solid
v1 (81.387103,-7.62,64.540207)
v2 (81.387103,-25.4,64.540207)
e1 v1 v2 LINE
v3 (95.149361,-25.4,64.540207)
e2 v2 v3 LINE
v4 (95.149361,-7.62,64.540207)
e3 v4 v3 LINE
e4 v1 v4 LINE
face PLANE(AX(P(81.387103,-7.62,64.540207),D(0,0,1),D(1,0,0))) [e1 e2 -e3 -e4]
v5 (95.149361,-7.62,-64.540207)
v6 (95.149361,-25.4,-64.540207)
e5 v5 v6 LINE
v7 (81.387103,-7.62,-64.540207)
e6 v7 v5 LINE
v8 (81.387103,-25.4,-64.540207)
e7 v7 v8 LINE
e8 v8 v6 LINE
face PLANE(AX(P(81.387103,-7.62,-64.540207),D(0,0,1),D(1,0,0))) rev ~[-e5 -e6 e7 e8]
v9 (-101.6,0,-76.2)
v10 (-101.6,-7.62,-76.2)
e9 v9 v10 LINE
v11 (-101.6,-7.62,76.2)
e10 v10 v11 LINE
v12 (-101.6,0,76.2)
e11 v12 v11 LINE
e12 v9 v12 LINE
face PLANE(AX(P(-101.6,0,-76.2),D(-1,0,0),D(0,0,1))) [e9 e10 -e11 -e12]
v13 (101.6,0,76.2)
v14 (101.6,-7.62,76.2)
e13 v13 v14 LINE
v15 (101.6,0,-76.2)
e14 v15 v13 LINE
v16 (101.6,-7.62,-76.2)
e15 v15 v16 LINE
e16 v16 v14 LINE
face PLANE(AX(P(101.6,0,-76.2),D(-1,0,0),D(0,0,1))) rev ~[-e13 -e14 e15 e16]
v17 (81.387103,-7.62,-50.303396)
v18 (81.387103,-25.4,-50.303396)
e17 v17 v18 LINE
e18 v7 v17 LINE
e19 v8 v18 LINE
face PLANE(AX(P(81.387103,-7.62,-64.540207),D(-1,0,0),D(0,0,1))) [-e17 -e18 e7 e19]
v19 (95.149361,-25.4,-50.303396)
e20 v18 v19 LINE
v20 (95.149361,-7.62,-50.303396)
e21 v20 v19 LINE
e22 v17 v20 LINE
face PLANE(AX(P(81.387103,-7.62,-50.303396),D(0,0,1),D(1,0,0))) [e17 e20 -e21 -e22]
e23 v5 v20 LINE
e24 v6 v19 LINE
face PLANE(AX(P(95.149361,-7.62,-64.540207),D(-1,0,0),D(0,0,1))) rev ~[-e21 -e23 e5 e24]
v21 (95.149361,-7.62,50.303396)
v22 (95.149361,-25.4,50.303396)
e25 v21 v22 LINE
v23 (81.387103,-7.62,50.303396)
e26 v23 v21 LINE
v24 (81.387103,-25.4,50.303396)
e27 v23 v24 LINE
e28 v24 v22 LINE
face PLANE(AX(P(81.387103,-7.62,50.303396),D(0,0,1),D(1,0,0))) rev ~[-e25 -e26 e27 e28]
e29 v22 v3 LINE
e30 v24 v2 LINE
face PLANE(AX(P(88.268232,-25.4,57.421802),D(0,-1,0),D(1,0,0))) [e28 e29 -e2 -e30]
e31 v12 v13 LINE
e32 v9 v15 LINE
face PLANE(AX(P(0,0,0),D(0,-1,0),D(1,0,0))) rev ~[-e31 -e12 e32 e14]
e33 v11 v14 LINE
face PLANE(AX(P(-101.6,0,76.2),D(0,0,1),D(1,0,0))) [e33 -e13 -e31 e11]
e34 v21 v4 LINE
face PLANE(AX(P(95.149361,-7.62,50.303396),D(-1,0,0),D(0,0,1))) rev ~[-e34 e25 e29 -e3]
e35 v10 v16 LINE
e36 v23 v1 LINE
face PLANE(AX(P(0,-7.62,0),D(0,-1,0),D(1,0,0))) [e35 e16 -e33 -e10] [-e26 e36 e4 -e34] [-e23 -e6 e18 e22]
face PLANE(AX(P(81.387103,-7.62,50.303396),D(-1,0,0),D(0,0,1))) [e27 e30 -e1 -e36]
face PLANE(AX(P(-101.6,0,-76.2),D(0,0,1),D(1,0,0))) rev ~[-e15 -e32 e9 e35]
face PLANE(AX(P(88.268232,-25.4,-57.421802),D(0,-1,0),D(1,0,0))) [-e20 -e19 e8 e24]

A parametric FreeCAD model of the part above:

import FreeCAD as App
import Part
import Sketcher
Q = App.Units.Quantity

doc = App.newDocument("Part")
body = doc.addObject("PartDesign::Body", "Body")

sketch1 = body.newObject("Sketcher::SketchObject", "Sketch")
sketch1.AttachmentSupport = (doc.getObject("XZ_Plane"), [""])
sketch1.MapMode = "FlatFace"
sketch1.addGeometry([
    Part.LineSegment(App.Vector(-102, 76, 0), App.Vector(-102, -76, 0)),
    Part.LineSegment(App.Vector(-102, -76, 0), App.Vector(102, -76, 0)),
    Part.LineSegment(App.Vector(102, -76, 0), App.Vector(102, 76, 0)),
    Part.LineSegment(App.Vector(102, 76, 0), App.Vector(-102, 76, 0)),
], False)
sketch1.addConstraint([
    Sketcher.Constraint("Coincident", 0, 2, 1, 1),
    Sketcher.Constraint("Coincident", 1, 2, 2, 1),
    Sketcher.Constraint("Coincident", 2, 2, 3, 1),
    Sketcher.Constraint("Coincident", 3, 2, 0, 1),
    Sketcher.Constraint("Vertical", 0),
    Sketcher.Constraint("Horizontal", 1),
    Sketcher.Constraint("Vertical", 2),
    Sketcher.Constraint("Horizontal", 3),
    Sketcher.Constraint("Symmetric", 0, 2, 2, 2, -1, 1),
    Sketcher.Constraint("DistanceX", 1, 1, 1, 2, Q("8 in")),
    Sketcher.Constraint("DistanceY", 0, 2, 0, 1, Q("6 in")),
])
pad1 = body.newObject("PartDesign::Pad", "Pad")
pad1.Profile = sketch1
pad1.Length = Q("0.3 in")

sketch2 = body.newObject("Sketcher::SketchObject", "Sketch001")
sketch2.AttachmentSupport = (doc.getObject("XZ_Plane"), [""])
sketch2.MapMode = "FlatFace"
sketch2.AttachmentOffset = App.Placement(App.Vector(0, 0, 0.3 * 25.4), App.Rotation())
sketch2.addGeometry([
    Part.LineSegment(App.Vector(81, 65, 0), App.Vector(81, 50, 0)),
    Part.LineSegment(App.Vector(81, 50, 0), App.Vector(95, 50, 0)),
    Part.LineSegment(App.Vector(95, 50, 0), App.Vector(95, 65, 0)),
    Part.LineSegment(App.Vector(95, 65, 0), App.Vector(81, 65, 0)),
    Part.LineSegment(App.Vector(81, -50, 0), App.Vector(81, -65, 0)),
    Part.LineSegment(App.Vector(81, -65, 0), App.Vector(95, -65, 0)),
    Part.LineSegment(App.Vector(95, -65, 0), App.Vector(95, -50, 0)),
    Part.LineSegment(App.Vector(95, -50, 0), App.Vector(81, -50, 0)),
], False)
sketch2.addConstraint([
    Sketcher.Constraint("Coincident", 0, 2, 1, 1),
    Sketcher.Constraint("Coincident", 1, 2, 2, 1),
    Sketcher.Constraint("Coincident", 2, 2, 3, 1),
    Sketcher.Constraint("Coincident", 3, 2, 0, 1),
    Sketcher.Constraint("Coincident", 4, 2, 5, 1),
    Sketcher.Constraint("Coincident", 5, 2, 6, 1),
    Sketcher.Constraint("Coincident", 6, 2, 7, 1),
    Sketcher.Constraint("Coincident", 7, 2, 4, 1),
    Sketcher.Constraint("Vertical", 0),
    Sketcher.Constraint("Horizontal", 1),
    Sketcher.Constraint("Vertical", 2),
    Sketcher.Constraint("Horizontal", 3),
    Sketcher.Constraint("Vertical", 4),
    Sketcher.Constraint("Horizontal", 5),
    Sketcher.Constraint("Vertical", 6),
    Sketcher.Constraint("Horizontal", 7),
    Sketcher.Constraint("Symmetric", 3, 2, 4, 2, -1),
    Sketcher.Constraint("Symmetric", 1, 2, 6, 2, -1),
    Sketcher.Constraint("DistanceX", 1, 1, 1, 2, Q("13.762258 mm")),
    Sketcher.Constraint("DistanceY", 0, 2, 0, 1, Q("14.236811 mm")),
    Sketcher.Constraint("DistanceX", -1, 1, 1, 2, Q("95.149361 mm")),
    Sketcher.Constraint("DistanceY", -1, 1, 0, 2, Q("50.303396 mm")),
])
pad2 = body.newObject("PartDesign::Pad", "Pad001")
pad2.Profile = sketch2
pad2.Length = Q("0.7 in")

doc.recompute()
